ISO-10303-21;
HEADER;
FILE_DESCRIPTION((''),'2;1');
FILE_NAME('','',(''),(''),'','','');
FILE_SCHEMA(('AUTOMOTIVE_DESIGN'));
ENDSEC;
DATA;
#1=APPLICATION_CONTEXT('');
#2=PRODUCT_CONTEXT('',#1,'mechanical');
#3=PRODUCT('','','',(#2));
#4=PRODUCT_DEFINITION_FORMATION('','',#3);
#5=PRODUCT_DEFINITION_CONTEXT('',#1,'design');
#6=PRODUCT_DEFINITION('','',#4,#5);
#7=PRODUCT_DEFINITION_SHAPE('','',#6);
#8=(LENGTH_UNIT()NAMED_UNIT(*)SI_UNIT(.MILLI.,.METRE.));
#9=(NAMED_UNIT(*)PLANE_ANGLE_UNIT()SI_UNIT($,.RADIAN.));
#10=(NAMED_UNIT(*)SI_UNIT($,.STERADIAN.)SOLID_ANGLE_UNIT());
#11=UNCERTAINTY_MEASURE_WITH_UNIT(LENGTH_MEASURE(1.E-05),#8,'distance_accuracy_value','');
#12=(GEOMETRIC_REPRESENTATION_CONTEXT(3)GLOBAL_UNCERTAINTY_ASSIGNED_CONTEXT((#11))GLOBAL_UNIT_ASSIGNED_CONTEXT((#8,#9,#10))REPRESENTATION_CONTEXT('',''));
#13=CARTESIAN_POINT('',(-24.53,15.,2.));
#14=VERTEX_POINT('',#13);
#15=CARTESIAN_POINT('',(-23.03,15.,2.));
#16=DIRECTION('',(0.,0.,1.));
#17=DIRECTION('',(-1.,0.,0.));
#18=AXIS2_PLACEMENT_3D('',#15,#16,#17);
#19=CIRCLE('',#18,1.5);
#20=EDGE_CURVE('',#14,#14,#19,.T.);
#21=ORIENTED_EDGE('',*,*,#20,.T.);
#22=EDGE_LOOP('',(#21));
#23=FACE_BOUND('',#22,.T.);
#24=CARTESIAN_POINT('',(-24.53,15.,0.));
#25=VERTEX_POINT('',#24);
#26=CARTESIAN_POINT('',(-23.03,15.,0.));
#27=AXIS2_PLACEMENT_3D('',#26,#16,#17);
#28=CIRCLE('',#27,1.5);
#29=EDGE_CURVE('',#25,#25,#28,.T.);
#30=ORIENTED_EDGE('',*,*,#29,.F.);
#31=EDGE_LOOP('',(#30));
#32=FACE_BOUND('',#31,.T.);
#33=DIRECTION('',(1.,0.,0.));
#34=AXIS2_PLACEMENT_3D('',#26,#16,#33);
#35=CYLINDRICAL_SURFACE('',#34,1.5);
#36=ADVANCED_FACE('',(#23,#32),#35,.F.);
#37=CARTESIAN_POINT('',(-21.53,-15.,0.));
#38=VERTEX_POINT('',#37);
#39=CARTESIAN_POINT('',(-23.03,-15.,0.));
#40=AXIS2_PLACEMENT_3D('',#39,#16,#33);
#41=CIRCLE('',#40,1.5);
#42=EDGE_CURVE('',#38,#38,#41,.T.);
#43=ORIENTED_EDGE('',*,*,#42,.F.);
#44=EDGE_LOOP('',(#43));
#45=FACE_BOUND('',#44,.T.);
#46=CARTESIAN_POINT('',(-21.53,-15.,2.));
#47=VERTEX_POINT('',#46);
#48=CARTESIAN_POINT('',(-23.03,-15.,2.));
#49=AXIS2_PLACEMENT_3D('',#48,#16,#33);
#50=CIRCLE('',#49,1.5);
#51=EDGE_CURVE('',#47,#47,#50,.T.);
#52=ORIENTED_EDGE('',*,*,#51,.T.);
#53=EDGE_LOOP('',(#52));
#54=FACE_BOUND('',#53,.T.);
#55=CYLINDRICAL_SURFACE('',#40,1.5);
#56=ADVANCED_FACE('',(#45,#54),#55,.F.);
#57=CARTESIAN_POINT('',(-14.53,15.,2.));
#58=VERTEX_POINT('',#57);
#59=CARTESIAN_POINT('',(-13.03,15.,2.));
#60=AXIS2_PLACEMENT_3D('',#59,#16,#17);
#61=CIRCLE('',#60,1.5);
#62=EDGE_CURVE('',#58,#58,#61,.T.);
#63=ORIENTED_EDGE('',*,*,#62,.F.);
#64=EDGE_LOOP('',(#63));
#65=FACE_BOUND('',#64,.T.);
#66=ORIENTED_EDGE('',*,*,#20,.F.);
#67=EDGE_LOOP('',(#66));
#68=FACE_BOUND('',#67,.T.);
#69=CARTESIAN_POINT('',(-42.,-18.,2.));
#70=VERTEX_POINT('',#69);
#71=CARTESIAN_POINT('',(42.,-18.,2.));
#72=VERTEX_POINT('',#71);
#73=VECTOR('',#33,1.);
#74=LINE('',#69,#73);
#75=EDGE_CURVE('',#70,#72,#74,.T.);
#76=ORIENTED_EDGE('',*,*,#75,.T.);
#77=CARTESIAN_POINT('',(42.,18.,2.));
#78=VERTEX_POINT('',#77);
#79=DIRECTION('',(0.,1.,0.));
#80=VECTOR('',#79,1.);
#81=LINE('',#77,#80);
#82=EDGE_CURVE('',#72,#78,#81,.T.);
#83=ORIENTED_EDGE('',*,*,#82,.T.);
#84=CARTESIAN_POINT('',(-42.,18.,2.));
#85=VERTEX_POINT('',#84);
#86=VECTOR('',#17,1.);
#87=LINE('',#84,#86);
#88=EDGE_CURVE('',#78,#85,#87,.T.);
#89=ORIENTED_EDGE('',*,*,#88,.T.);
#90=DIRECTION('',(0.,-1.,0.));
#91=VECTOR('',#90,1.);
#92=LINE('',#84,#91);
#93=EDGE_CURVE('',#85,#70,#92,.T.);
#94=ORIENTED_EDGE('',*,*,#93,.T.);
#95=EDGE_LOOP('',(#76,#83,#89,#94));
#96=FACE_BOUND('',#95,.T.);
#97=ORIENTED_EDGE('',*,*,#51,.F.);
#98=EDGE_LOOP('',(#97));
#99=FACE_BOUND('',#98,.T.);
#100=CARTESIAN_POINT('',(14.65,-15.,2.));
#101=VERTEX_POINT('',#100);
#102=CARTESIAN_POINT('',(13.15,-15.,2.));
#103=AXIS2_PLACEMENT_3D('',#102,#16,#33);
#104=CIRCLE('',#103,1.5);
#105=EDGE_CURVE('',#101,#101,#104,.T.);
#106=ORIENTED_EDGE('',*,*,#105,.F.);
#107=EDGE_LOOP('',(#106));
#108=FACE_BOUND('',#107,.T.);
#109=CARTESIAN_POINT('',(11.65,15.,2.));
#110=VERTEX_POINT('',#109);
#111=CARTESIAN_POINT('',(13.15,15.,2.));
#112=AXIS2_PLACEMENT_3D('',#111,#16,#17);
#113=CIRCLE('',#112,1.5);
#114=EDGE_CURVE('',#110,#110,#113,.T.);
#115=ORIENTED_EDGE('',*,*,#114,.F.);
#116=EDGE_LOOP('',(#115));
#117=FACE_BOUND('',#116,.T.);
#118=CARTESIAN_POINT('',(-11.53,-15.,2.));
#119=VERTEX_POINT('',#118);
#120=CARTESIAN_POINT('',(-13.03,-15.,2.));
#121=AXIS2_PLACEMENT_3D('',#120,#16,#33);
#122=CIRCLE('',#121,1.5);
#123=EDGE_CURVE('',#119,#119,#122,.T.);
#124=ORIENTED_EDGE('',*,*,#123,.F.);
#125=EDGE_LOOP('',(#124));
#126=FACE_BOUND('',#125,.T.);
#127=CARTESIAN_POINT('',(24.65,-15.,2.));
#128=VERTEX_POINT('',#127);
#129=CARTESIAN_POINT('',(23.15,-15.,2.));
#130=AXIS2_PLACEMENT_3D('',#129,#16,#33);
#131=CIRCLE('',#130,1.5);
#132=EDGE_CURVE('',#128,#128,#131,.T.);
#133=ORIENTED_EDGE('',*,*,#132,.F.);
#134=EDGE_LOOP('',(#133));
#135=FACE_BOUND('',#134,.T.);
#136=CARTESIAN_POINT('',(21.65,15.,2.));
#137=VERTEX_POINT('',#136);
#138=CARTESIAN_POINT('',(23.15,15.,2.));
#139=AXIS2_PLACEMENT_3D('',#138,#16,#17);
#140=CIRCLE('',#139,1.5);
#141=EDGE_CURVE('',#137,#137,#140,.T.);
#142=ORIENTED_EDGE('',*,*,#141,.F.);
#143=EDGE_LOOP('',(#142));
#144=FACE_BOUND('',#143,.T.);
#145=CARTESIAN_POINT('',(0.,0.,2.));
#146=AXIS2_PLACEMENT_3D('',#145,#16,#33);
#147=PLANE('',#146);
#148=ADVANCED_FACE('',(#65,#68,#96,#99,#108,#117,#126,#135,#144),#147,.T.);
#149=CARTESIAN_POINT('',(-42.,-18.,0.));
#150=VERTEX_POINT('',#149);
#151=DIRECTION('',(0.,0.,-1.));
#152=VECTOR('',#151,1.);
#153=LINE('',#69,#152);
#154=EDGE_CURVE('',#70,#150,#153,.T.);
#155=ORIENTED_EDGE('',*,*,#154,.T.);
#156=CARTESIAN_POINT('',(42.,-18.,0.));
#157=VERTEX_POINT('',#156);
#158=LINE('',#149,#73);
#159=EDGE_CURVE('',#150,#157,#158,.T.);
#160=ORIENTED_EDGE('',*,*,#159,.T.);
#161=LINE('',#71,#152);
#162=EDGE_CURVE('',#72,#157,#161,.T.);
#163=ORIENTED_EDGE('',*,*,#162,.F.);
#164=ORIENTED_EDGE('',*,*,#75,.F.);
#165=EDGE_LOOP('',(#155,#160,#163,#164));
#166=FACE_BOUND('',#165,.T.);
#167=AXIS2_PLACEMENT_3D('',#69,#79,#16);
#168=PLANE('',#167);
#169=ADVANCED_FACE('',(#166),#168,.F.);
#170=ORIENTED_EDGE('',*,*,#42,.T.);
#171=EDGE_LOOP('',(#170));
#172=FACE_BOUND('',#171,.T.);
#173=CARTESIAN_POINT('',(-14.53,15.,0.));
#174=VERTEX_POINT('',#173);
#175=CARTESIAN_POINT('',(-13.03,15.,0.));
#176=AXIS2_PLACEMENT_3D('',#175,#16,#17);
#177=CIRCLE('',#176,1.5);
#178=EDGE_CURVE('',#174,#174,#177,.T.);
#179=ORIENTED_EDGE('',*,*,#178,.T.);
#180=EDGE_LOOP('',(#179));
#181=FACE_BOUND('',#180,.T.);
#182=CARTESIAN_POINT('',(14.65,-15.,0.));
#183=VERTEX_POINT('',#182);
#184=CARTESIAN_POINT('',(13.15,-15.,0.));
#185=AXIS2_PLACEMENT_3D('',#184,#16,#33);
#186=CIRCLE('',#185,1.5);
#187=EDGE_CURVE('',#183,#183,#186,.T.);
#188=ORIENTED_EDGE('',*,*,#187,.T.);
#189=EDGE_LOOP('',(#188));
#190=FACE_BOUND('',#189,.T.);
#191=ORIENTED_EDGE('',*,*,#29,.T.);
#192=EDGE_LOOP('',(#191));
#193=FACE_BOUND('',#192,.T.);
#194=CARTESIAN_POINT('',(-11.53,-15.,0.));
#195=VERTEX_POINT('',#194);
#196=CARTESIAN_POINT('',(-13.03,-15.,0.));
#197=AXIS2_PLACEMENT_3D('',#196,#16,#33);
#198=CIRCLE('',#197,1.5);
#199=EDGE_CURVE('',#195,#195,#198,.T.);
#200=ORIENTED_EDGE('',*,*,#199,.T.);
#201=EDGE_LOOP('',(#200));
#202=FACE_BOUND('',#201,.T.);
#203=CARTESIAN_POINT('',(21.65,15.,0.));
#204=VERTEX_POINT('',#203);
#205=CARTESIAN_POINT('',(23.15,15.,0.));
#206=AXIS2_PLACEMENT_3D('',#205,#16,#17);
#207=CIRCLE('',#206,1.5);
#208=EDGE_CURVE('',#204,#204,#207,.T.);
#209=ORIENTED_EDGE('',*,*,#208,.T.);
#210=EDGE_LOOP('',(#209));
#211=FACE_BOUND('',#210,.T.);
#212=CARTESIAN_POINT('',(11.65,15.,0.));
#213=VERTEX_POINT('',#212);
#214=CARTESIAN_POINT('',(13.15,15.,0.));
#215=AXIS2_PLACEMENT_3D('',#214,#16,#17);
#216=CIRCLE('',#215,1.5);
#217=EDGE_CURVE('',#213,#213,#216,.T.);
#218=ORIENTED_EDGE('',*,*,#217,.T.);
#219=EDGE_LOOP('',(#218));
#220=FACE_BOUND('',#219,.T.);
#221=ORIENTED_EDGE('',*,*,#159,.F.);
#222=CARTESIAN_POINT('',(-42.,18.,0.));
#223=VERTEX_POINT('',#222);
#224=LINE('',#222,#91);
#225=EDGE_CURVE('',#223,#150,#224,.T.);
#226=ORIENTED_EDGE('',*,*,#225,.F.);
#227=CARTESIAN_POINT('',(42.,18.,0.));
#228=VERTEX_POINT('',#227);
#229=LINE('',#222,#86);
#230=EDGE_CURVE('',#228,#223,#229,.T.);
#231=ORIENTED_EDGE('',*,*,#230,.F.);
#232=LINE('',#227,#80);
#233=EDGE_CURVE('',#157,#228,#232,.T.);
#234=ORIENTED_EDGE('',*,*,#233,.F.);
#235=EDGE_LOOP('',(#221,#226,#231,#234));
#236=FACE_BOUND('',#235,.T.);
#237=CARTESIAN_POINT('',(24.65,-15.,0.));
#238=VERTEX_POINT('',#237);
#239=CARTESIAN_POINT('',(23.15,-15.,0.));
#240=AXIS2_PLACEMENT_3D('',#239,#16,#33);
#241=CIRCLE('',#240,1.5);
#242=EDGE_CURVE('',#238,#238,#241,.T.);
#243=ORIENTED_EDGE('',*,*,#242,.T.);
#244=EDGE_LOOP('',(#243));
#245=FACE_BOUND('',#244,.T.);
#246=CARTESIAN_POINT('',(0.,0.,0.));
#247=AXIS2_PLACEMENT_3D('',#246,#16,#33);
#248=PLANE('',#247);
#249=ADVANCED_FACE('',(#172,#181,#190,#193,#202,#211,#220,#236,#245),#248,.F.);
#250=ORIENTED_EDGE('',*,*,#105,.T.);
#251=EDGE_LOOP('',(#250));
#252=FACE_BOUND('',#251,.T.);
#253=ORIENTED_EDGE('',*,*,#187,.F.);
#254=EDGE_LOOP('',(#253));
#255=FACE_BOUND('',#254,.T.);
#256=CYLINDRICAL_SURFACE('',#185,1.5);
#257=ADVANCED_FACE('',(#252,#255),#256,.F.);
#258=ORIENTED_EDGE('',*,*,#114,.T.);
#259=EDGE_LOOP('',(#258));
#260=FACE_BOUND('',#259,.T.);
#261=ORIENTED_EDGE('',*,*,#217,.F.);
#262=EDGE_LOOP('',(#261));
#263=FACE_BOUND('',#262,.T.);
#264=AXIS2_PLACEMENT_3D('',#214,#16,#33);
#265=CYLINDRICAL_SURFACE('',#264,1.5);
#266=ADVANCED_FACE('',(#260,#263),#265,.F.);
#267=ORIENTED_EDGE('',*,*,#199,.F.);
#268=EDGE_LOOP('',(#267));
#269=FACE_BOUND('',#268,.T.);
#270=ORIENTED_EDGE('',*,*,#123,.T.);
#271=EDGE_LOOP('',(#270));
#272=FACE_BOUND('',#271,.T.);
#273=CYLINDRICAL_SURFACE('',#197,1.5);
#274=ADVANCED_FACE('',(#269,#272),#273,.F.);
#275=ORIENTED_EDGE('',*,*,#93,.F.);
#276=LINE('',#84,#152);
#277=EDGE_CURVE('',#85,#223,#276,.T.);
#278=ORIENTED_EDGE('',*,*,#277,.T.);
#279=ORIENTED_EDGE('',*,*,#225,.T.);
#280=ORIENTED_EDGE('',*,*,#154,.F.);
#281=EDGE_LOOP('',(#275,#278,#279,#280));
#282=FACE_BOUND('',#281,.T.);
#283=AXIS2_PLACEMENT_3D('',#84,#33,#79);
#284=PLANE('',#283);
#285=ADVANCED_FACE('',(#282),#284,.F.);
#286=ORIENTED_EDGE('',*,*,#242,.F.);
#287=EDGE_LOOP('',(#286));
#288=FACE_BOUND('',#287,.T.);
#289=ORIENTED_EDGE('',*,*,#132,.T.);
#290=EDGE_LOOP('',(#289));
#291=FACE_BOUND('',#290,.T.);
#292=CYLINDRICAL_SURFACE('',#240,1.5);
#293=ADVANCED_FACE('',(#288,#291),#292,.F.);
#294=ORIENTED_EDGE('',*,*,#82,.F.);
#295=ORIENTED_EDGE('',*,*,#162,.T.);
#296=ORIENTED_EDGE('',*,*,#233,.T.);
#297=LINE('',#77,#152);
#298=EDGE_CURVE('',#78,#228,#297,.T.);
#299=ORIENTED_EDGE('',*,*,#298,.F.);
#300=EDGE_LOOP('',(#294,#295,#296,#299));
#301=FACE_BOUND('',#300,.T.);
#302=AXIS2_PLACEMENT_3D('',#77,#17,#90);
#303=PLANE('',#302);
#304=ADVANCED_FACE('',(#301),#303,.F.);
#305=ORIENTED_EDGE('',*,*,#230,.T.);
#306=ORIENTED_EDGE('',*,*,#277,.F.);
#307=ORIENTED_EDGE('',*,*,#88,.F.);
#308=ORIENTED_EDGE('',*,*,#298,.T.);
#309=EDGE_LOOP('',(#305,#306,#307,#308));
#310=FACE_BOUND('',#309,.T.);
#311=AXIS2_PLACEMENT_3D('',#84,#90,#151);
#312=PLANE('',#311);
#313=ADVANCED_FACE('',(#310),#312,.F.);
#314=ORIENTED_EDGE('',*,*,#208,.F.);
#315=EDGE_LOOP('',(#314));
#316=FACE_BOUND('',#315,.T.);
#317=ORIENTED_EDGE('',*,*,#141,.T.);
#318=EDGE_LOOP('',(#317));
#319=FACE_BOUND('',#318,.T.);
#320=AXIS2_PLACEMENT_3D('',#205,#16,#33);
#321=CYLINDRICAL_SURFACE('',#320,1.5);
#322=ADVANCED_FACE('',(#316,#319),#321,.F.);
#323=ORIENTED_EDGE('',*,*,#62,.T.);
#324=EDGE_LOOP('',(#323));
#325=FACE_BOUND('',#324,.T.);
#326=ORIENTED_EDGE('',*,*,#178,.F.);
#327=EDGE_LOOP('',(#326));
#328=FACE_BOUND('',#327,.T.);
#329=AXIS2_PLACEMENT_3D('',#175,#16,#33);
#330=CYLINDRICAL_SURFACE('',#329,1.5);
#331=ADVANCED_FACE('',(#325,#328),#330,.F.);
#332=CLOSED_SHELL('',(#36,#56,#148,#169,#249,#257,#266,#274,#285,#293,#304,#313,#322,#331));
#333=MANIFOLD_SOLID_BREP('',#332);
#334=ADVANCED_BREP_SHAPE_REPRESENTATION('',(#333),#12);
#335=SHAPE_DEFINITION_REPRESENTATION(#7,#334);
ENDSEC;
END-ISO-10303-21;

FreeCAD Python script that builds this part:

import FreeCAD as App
import Part
import Sketcher

V = App.Vector
Q = App.Units.Quantity


def add_polygon(sketch, points):
    """Adds a closed chain of lines whose ends are joined by coincident constraints."""
    first, n = sketch.GeometryCount, len(points)
    for a, b in zip(points, points[1:] + points[:1]):
        sketch.addGeometry(Part.LineSegment(App.Vector(*a, 0), App.Vector(*b, 0)), False)
    for i in range(n):
        sketch.addConstraint(Sketcher.Constraint("Coincident", first + i, 2, first + (i + 1) % n, 1))

doc = App.newDocument("Part")
params = doc.addObject("Spreadsheet::Sheet", "Params")
for row, (alias, value) in enumerate([
    ("sketch1_width", "84 mm"),
    ("sketch1_height", "36 mm"),
    ("pad1_length", "2 mm"),
    ("sketch2_diameter", "3 mm"),
    ("pocket1_length", "2 mm"),
], start=1):
    params.set(f"A{row}", alias)
    params.set(f"B{row}", "=" + value)
    params.setAlias(f"B{row}", alias)

body = doc.addObject("PartDesign::Body", "Body")

sketch1 = body.newObject("Sketcher::SketchObject", "Sketch")
sketch1.AttachmentSupport = (doc.getObject("XY_Plane"), [""])
sketch1.MapMode = "FlatFace"
add_polygon(sketch1, [(-42, 18), (-42, -18), (42, -18), (42, 18)])
sketch1.addConstraint([
    Sketcher.Constraint("Vertical", 0),
    Sketcher.Constraint("Horizontal", 1),
    Sketcher.Constraint("Vertical", 2),
    Sketcher.Constraint("Horizontal", 3),
    Sketcher.Constraint("Symmetric", 0, 2, 2, 2, -1, 1),
    Sketcher.Constraint("DistanceX", 1, 1, 1, 2, Q("84 mm")),
    Sketcher.Constraint("DistanceY", 0, 2, 0, 1, Q("36 mm")),
])
sketch1.setExpression("Constraints[9]", "Params.sketch1_width")
sketch1.setExpression("Constraints[10]", "Params.sketch1_height")
pad1 = body.newObject("PartDesign::Pad", "Pad")
pad1.Profile = sketch1
pad1.setExpression("Length", "Params.pad1_length")

sketch2 = body.newObject("Sketcher::SketchObject", "Sketch001")
sketch2.AttachmentSupport = (doc.getObject("XY_Plane"), [""])
sketch2.MapMode = "FlatFace"
sketch2.AttachmentOffset = App.Placement(V(0, 0, 2), App.Rotation())
sketch2.addGeometry([
    Part.Circle(V(23.15, -15, 0), V(0, 0, 1), 1.5),
    Part.Circle(V(13.15, -15, 0), V(0, 0, 1), 1.5),
    Part.Circle(V(-13.03, -15, 0), V(0, 0, 1), 1.5),
    Part.Circle(V(-23.03, -15, 0), V(0, 0, 1), 1.5),
    Part.Circle(V(-23.03, 15, 0), V(0, 0, 1), 1.5),
    Part.Circle(V(-13.03, 15, 0), V(0, 0, 1), 1.5),
    Part.Circle(V(13.15, 15, 0), V(0, 0, 1), 1.5),
    Part.Circle(V(23.15, 15, 0), V(0, 0, 1), 1.5),
], False)
sketch2.addConstraint([
    Sketcher.Constraint("Equal", 0, 1),
    Sketcher.Constraint("Equal", 1, 2),
    Sketcher.Constraint("Equal", 2, 3),
    Sketcher.Constraint("Equal", 3, 4),
    Sketcher.Constraint("Equal", 4, 5),
    Sketcher.Constraint("Equal", 5, 6),
    Sketcher.Constraint("Equal", 6, 7),
    Sketcher.Constraint("Symmetric", 3, 3, 4, 3, -1),
    Sketcher.Constraint("Symmetric", 2, 3, 5, 3, -1),
    Sketcher.Constraint("Symmetric", 1, 3, 6, 3, -1),
    Sketcher.Constraint("Symmetric", 0, 3, 7, 3, -1),
    Sketcher.Constraint("Horizontal", 0, 3, 1, 3),
    Sketcher.Constraint("Horizontal", 1, 3, 2, 3),
    Sketcher.Constraint("Horizontal", 2, 3, 3, 3),
    Sketcher.Constraint("Diameter", 0, Q("3 mm")),
    Sketcher.Constraint("DistanceY", 0, 3, -1, 1, Q("15 mm")),
    Sketcher.Constraint("DistanceX", 1, 3, 0, 3, Q("10 mm")),
    Sketcher.Constraint("DistanceX", 3, 3, 2, 3, Q("10 mm")),
    Sketcher.Constraint("DistanceX", -1, 1, 0, 3, Q("23.15 mm")),
    Sketcher.Constraint("DistanceX", 2, 3, -1, 1, Q("13.03 mm")),
])
sketch2.setExpression("Constraints[14]", "Params.sketch2_diameter")
pocket1 = body.newObject("PartDesign::Pocket", "Pocket")
pocket1.Profile = sketch2
pocket1.setExpression("Length", "Params.pocket1_length")

doc.recompute()
